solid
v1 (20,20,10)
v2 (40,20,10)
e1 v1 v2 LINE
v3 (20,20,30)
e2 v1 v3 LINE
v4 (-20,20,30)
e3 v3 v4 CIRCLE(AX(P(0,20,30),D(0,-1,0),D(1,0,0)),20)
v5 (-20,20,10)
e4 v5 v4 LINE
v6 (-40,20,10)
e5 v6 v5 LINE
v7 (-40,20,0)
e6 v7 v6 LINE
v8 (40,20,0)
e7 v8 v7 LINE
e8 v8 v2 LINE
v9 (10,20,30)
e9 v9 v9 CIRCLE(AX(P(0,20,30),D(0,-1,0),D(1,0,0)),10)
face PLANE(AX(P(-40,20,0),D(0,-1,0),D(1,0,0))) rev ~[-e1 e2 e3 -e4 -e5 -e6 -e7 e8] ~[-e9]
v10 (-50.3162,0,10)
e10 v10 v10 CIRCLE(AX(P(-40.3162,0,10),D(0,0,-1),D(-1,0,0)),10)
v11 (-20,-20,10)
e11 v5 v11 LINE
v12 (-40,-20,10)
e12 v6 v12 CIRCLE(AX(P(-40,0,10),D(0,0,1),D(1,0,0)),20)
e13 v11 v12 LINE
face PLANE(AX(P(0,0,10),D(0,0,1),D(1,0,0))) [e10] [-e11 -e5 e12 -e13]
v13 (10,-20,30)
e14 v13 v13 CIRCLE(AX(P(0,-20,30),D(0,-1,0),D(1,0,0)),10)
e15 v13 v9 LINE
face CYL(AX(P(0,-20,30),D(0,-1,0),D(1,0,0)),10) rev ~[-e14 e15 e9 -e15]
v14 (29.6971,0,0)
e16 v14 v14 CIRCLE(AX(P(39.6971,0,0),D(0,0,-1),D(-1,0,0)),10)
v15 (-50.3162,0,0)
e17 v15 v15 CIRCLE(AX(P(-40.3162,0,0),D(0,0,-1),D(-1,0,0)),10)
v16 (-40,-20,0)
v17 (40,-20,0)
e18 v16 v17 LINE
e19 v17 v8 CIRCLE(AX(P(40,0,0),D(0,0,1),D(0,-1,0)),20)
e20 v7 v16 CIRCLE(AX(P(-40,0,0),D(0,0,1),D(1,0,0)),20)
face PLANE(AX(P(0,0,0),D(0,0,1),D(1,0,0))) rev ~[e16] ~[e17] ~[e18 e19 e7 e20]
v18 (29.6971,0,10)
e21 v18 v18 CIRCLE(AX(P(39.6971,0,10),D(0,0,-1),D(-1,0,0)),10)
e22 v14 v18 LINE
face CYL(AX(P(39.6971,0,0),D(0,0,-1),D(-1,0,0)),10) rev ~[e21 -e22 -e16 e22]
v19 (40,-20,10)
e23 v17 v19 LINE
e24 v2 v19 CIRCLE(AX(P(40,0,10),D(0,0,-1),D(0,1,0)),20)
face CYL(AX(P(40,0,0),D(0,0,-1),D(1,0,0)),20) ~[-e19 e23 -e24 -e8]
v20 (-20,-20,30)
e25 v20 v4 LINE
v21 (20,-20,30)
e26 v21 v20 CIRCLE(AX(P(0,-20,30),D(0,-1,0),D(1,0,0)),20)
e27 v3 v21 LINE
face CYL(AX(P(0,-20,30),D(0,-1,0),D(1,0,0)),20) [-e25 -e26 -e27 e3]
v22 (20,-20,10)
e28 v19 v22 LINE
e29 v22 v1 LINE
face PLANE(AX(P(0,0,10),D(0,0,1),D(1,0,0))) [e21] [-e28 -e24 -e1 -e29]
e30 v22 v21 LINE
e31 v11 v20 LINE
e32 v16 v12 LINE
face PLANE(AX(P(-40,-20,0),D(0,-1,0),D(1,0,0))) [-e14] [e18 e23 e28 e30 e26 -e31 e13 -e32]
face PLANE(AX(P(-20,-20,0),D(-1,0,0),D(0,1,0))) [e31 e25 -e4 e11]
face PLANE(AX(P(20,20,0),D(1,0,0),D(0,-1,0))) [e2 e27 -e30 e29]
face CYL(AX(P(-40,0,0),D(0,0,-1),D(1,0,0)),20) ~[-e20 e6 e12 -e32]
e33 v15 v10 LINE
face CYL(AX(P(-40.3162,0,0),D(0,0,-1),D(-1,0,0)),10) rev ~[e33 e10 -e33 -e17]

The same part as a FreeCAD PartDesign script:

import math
import FreeCAD as App
import Part
import Sketcher
from FreeCAD import Vector

doc = App.newDocument("Part")
body = doc.addObject("PartDesign::Body", "Body")
body.AllowCompound = True

# Sketch on XY plane
sketch1 = body.newObject("Sketcher::SketchObject", "Sketch")
sketch1.AttachmentSupport = (doc.getObject("XY_Plane"), [""])
sketch1.MapMode = "FlatFace"
sketch1.addGeometry(Part.LineSegment(Vector(-20, 20, 0), Vector(-40, 20, 0)), False)
sketch1.addGeometry(Part.ArcOfCircle(Part.Circle(Vector(-40, 0, 0), Vector(0, 0, 1), 20), math.radians(90), math.radians(270)), False)
sketch1.addGeometry(Part.LineSegment(Vector(-40, -20, 0), Vector(-20, -20, 0)), False)
sketch1.addGeometry(Part.LineSegment(Vector(-20, -20, 0), Vector(-20, 20, 0)), False)
sketch1.addGeometry(Part.LineSegment(Vector(40, 20, 0), Vector(20, 20, 0)), False)
sketch1.addGeometry(Part.LineSegment(Vector(20, 20, 0), Vector(20, -20, 0)), False)
sketch1.addGeometry(Part.LineSegment(Vector(20, -20, 0), Vector(40, -20, 0)), False)
sketch1.addGeometry(Part.ArcOfCircle(Part.Circle(Vector(40, 0, 0), Vector(0, 0, 1), 20), math.radians(-90), math.radians(90)), False)
sketch1.addConstraint(Sketcher.Constraint("Tangent", 0, 2, 1, 1))
sketch1.addConstraint(Sketcher.Constraint("Tangent", 1, 2, 2, 1))
sketch1.addConstraint(Sketcher.Constraint("Coincident", 2, 2, 3, 1))
sketch1.addConstraint(Sketcher.Constraint("Coincident", 3, 2, 0, 1))
sketch1.addConstraint(Sketcher.Constraint("Coincident", 4, 2, 5, 1))
sketch1.addConstraint(Sketcher.Constraint("Coincident", 5, 2, 6, 1))
sketch1.addConstraint(Sketcher.Constraint("Tangent", 6, 2, 7, 1))
sketch1.addConstraint(Sketcher.Constraint("Tangent", 7, 2, 4, 1))
sketch1.addConstraint(Sketcher.Constraint("Horizontal", 0))
sketch1.addConstraint(Sketcher.Constraint("Horizontal", 2))
sketch1.addConstraint(Sketcher.Constraint("Vertical", 3))
sketch1.addConstraint(Sketcher.Constraint("Horizontal", 4))
sketch1.addConstraint(Sketcher.Constraint("Vertical", 5))
sketch1.addConstraint(Sketcher.Constraint("Horizontal", 6))
sketch1.addConstraint(Sketcher.Constraint("Equal", 1, 7))
sketch1.addConstraint(Sketcher.Constraint("Symmetric", 1, 3, 7, 3, -1, 1))
sketch1.addConstraint(Sketcher.Constraint("Symmetric", 3, 2, 4, 2, -2))
sketch1.addConstraint(Sketcher.Constraint("Radius", 1, 20.0))
sketch1.addConstraint(Sketcher.Constraint("DistanceX", 0, 2, 0, 1, 20.0))
sketch1.addConstraint(Sketcher.Constraint("DistanceX", 1, 3, -1, 1, 40.0))
pad1 = body.newObject("PartDesign::Pad", "Pad")
pad1.Profile = sketch1
pad1.Length = 10

# Sketch on XY plane
sketch2 = body.newObject("Sketcher::SketchObject", "Sketch001")
sketch2.AttachmentSupport = (doc.getObject("XY_Plane"), [""])
sketch2.MapMode = "FlatFace"
sketch2.addGeometry(Part.LineSegment(Vector(20, -20, 0), Vector(20, 20, 0)), False)
sketch2.addGeometry(Part.LineSegment(Vector(20, 20, 0), Vector(-20, 20, 0)), False)
sketch2.addGeometry(Part.LineSegment(Vector(-20, 20, 0), Vector(-20, -20, 0)), False)
sketch2.addGeometry(Part.LineSegment(Vector(-20, -20, 0), Vector(20, -20, 0)), False)
sketch2.addConstraint(Sketcher.Constraint("Coincident", 0, 2, 1, 1))
sketch2.addConstraint(Sketcher.Constraint("Coincident", 1, 2, 2, 1))
sketch2.addConstraint(Sketcher.Constraint("Coincident", 2, 2, 3, 1))
sketch2.addConstraint(Sketcher.Constraint("Coincident", 3, 2, 0, 1))
sketch2.addConstraint(Sketcher.Constraint("Vertical", 0))
sketch2.addConstraint(Sketcher.Constraint("Horizontal", 1))
sketch2.addConstraint(Sketcher.Constraint("Vertical", 2))
sketch2.addConstraint(Sketcher.Constraint("Horizontal", 3))
sketch2.addConstraint(Sketcher.Constraint("Symmetric", 0, 2, 2, 2, -1, 1))
sketch2.addConstraint(Sketcher.Constraint("Equal", 3, 0))
sketch2.addConstraint(Sketcher.Constraint("DistanceX", 1, 2, 1, 1, 40.0))
pad2 = body.newObject("PartDesign::Pad", "Pad001")
pad2.Profile = sketch2
pad2.Length = 30

# Sketch on XY plane
sketch3 = body.newObject("Sketcher::SketchObject", "Sketch002")
sketch3.AttachmentSupport = (doc.getObject("XY_Plane"), [""])
sketch3.MapMode = "FlatFace"
sketch3.addGeometry(Part.Circle(Vector(40, 0, 0), Vector(0, 0, 1), 10), False)
sketch3.addGeometry(Part.Circle(Vector(-40, 0, 0), Vector(0, 0, 1), 10), False)
sketch3.addConstraint(Sketcher.Constraint("Equal", 0, 1))
sketch3.addConstraint(Sketcher.Constraint("PointOnObject", 0, 3, -1))
sketch3.addConstraint(Sketcher.Constraint("PointOnObject", 1, 3, -1))
sketch3.addConstraint(Sketcher.Constraint("Diameter", 0, 20.0))
sketch3.addConstraint(Sketcher.Constraint("DistanceX", -1, 1, 0, 3, 39.697))
sketch3.addConstraint(Sketcher.Constraint("DistanceX", 1, 3, -1, 1, 40.3162))
pocket1 = body.newObject("PartDesign::Pocket", "Pocket")
pocket1.Profile = sketch3
pocket1.Length = 10
pocket1.Reversed = True

# Sketch on XZ plane
sketch4 = body.newObject("Sketcher::SketchObject", "Sketch003")
sketch4.AttachmentSupport = (doc.getObject("XZ_Plane"), [""])
sketch4.MapMode = "FlatFace"
sketch4.AttachmentOffset = App.Placement(Vector(0, 0, 20), App.Rotation())
sketch4.addGeometry(Part.ArcOfCircle(Part.Circle(Vector(0, 30, 0), Vector(0, 0, 1), 20), math.radians(0), math.radians(180)), False)
sketch4.addGeometry(Part.LineSegment(Vector(-20, 30, 0), Vector(20, 30, 0)), False)
sketch4.addConstraint(Sketcher.Constraint("Coincident", 0, 1, 1, 2))
sketch4.addConstraint(Sketcher.Constraint("Coincident", 1, 1, 0, 2))
sketch4.addConstraint(Sketcher.Constraint("Horizontal", 1))
sketch4.addConstraint(Sketcher.Constraint("PointOnObject", 0, 3, -2))
sketch4.addConstraint(Sketcher.Constraint("Radius", 0, 20.0))
sketch4.addConstraint(Sketcher.Constraint("DistanceY", -1, 1, 0, 3, 30.0))
sketch4.addConstraint(Sketcher.Constraint("DistanceY", -1, 1, 0, 1, 30.0))
pad3 = body.newObject("PartDesign::Pad", "Pad002")
pad3.Profile = sketch4
pad3.Length = 40
pad3.Reversed = True

# Sketch on XZ plane
sketch5 = body.newObject("Sketcher::SketchObject", "Sketch004")
sketch5.AttachmentSupport = (doc.getObject("XZ_Plane"), [""])
sketch5.MapMode = "FlatFace"
sketch5.AttachmentOffset = App.Placement(Vector(0, 0, 20), App.Rotation())
sketch5.addGeometry(Part.Circle(Vector(0, 30, 0), Vector(0, 0, 1), 10), False)
sketch5.addConstraint(Sketcher.Constraint("PointOnObject", 0, 3, -2))
sketch5.addConstraint(Sketcher.Constraint("Diameter", 0, 20.0))
sketch5.addConstraint(Sketcher.Constraint("DistanceY", -1, 1, 0, 3, 30.0))
pocket2 = body.newObject("PartDesign::Pocket", "Pocket001")
pocket2.Profile = sketch5
pocket2.Length = 40

doc.recompute()
